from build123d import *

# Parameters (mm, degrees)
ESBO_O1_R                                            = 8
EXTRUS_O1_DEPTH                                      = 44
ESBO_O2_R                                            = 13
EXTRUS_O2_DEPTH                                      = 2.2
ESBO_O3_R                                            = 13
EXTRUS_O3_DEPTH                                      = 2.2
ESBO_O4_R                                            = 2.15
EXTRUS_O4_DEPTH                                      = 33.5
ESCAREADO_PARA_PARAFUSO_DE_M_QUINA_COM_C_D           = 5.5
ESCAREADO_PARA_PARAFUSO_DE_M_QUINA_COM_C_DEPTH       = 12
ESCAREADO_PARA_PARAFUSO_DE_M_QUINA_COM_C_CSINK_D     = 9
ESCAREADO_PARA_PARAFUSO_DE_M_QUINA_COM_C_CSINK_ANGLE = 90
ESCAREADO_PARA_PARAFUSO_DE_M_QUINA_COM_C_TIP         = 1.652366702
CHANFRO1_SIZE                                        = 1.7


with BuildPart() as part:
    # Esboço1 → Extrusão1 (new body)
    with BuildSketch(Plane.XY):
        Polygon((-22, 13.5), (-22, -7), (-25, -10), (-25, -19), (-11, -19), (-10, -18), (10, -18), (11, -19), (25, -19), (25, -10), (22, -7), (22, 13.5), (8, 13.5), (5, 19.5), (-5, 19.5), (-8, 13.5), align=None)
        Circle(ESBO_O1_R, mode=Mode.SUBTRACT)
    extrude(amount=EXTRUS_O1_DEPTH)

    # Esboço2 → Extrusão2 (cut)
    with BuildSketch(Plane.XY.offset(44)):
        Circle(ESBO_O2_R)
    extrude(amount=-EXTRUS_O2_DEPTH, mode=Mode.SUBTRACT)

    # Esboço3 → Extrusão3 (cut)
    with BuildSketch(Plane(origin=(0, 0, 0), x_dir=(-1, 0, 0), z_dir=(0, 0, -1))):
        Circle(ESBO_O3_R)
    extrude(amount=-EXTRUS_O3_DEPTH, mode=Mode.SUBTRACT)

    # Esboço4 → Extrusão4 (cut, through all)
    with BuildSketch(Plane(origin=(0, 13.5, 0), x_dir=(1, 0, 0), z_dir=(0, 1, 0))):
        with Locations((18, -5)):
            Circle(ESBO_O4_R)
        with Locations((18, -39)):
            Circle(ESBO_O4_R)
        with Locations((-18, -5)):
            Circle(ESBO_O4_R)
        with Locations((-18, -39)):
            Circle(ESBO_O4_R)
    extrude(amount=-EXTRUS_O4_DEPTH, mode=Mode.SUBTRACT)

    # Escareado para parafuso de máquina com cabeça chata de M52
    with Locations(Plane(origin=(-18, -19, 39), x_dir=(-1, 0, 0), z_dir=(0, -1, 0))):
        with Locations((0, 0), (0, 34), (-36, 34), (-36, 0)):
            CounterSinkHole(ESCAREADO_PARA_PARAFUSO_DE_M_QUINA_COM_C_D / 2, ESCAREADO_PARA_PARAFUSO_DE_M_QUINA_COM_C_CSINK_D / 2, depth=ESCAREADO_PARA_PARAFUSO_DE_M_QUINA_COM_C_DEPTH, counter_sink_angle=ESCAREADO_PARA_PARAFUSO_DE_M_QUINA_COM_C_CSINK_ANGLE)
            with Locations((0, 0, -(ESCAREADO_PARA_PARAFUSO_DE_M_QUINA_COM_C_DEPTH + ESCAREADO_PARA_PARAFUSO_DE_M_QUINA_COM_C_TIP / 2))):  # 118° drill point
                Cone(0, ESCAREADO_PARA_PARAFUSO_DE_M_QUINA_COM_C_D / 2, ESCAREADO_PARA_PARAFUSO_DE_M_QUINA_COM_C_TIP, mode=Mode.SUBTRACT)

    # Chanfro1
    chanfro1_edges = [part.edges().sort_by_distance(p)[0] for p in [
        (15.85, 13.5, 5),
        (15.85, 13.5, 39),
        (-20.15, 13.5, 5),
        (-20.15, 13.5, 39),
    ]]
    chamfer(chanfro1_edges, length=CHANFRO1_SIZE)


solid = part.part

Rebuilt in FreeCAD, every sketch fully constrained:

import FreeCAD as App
import Part
import Sketcher
from FreeCAD import Vector
Q = App.Units.Quantity


def edges_at(feature, points):
    """Names of the edges that pass closest to the given points."""
    edges = feature.Shape.Edges
    near = lambda p: min(range(len(edges)), key=lambda i: edges[i].distToShape(Part.Vertex(*p))[0])
    return sorted({f"Edge{near(p) + 1}" for p in points})


def add_polygon(sketch, points):
    """Adds a closed chain of lines whose ends are joined by coincident constraints."""
    first, n = sketch.GeometryCount, len(points)
    for a, b in zip(points, points[1:] + points[:1]):
        sketch.addGeometry(Part.LineSegment(App.Vector(*a, 0), App.Vector(*b, 0)), False)
    for i in range(n):
        sketch.addConstraint(Sketcher.Constraint("Coincident", first + i, 2, first + (i + 1) % n, 1))

doc = App.newDocument("Part")
body = doc.addObject("PartDesign::Body", "Body")

sketch1 = body.newObject("Sketcher::SketchObject", "Sketch")
sketch1.AttachmentSupport = (doc.getObject("XY_Plane"), [""])
sketch1.MapMode = "FlatFace"
add_polygon(sketch1, [(-22, 13.5), (-22, -7), (-25, -10), (-25, -19), (-11, -19), (-10, -18), (10, -18), (11, -19), (25, -19), (25, -10), (22, -7), (22, 13.5), (8, 13.5), (5, 19.5), (-5, 19.5), (-8, 13.5)])
sketch1.addGeometry(Part.Circle(Vector(0, 0, 0), Vector(0, 0, 1), 8), False)
sketch1.addConstraint([
    Sketcher.Constraint("Vertical", 0),
    Sketcher.Constraint("Vertical", 2),
    Sketcher.Constraint("Horizontal", 3),
    Sketcher.Constraint("Horizontal", 5),
    Sketcher.Constraint("Horizontal", 7),
    Sketcher.Constraint("Vertical", 8),
    Sketcher.Constraint("Vertical", 10),
    Sketcher.Constraint("Horizontal", 11),
    Sketcher.Constraint("Horizontal", 13),
    Sketcher.Constraint("Horizontal", 15),
    Sketcher.Constraint("Coincident", 16, 3, -1, 1),
    Sketcher.Constraint("Symmetric", 3, 2, 6, 2, -2),
    Sketcher.Constraint("Symmetric", 1, 2, 8, 2, -2),
    Sketcher.Constraint("Symmetric", 0, 2, 9, 2, -2),
    Sketcher.Constraint("Symmetric", 11, 2, 14, 2, -2),
    Sketcher.Constraint("Parallel", 1, 4),
    Sketcher.Constraint("Perpendicular", 4, 6),
    Sketcher.Constraint("Parallel", 6, 9),
    Sketcher.Constraint("Equal", 7, 11),
    Sketcher.Constraint("Equal", 12, 14),
    Sketcher.Constraint("Diameter", 16, Q("16 mm")),
    Sketcher.Constraint("DistanceX", 3, 1, 3, 2, Q("14 mm")),
    Sketcher.Constraint("DistanceX", 5, 1, 5, 2, Q("20 mm")),
    Sketcher.Constraint("DistanceX", 13, 2, 13, 1, Q("10 mm")),
    Sketcher.Constraint("DistanceY", 2, 2, 2, 1, Q("9 mm")),
    Sketcher.Constraint("DistanceY", 0, 2, 0, 1, Q("20.5 mm")),
    Sketcher.Constraint("DistanceX", 0, 2, -1, 1, Q("22 mm")),
    Sketcher.Constraint("DistanceY", 0, 2, -1, 1, Q("7 mm")),
    Sketcher.Constraint("DistanceX", 1, 2, -1, 1, Q("25 mm")),
    Sketcher.Constraint("DistanceY", 11, 2, 12, 2, Q("6 mm")),
])
pad1 = body.newObject("PartDesign::Pad", "Pad")
pad1.Profile = sketch1
pad1.Length = 44

sketch2 = body.newObject("Sketcher::SketchObject", "Sketch001")
sketch2.AttachmentSupport = (doc.getObject("XY_Plane"), [""])
sketch2.MapMode = "FlatFace"
sketch2.AttachmentOffset = App.Placement(Vector(0, 0, 44), App.Rotation())
sketch2.addGeometry(Part.Circle(Vector(0, 0, 0), Vector(0, 0, 1), 13), False)
sketch2.addConstraint([
    Sketcher.Constraint("Coincident", 0, 3, -1, 1),
    Sketcher.Constraint("Diameter", 0, Q("26 mm")),
])
pocket1 = body.newObject("PartDesign::Pocket", "Pocket")
pocket1.Profile = sketch2
pocket1.Length = 2.2

sketch3 = body.newObject("Sketcher::SketchObject", "Sketch002")
sketch3.AttachmentSupport = (doc.getObject("XY_Plane"), [""])
sketch3.MapMode = "FlatFace"
sketch3.addGeometry(Part.Circle(Vector(0, 0, 0), Vector(0, 0, 1), 13), False)
sketch3.addConstraint([
    Sketcher.Constraint("Coincident", 0, 3, -1, 1),
    Sketcher.Constraint("Diameter", 0, Q("26 mm")),
])
pocket2 = body.newObject("PartDesign::Pocket", "Pocket001")
pocket2.Profile = sketch3
pocket2.Length = 2.2
pocket2.Reversed = True

sketch4 = body.newObject("Sketcher::SketchObject", "Sketch003")
sketch4.AttachmentSupport = (doc.getObject("XZ_Plane"), [""])
sketch4.MapMode = "FlatFace"
sketch4.AttachmentOffset = App.Placement(Vector(0, 0, -13.5), App.Rotation())
sketch4.addGeometry([
    Part.Circle(Vector(18, 5, 0), Vector(0, 0, 1), 2.1),
    Part.Circle(Vector(18, 39, 0), Vector(0, 0, 1), 2.1),
    Part.Circle(Vector(-18, 5, 0), Vector(0, 0, 1), 2.1),
    Part.Circle(Vector(-18, 39, 0), Vector(0, 0, 1), 2.1),
], False)
sketch4.addConstraint([
    Sketcher.Constraint("Equal", 0, 1),
    Sketcher.Constraint("Equal", 1, 2),
    Sketcher.Constraint("Equal", 2, 3),
    Sketcher.Constraint("Symmetric", 0, 3, 2, 3, -2),
    Sketcher.Constraint("Symmetric", 1, 3, 3, 3, -2),
    Sketcher.Constraint("Vertical", 0, 3, 1, 3),
    Sketcher.Constraint("Diameter", 0, Q("4.3 mm")),
    Sketcher.Constraint("DistanceX", -1, 1, 0, 3, Q("18 mm")),
    Sketcher.Constraint("DistanceY", -1, 1, 0, 3, Q("5 mm")),
    Sketcher.Constraint("DistanceY", -1, 1, 1, 3, Q("39 mm")),
])
pocket3 = body.newObject("PartDesign::Pocket", "Pocket002")
pocket3.Profile = sketch4
pocket3.Type = "ThroughAll"
pocket3.Reversed = True

sketch5 = body.newObject("Sketcher::SketchObject", "Sketch004")
sketch5.AttachmentSupport = (doc.getObject("XZ_Plane"), [""])
sketch5.MapMode = "FlatFace"
sketch5.AttachmentOffset = App.Placement(Vector(0, 0, 19), App.Rotation())
sketch5.addGeometry([
    Part.Circle(Vector(-18, 39, 0), Vector(0, 0, 1), 2.8),
    Part.Circle(Vector(-18, 5, 0), Vector(0, 0, 1), 2.8),
    Part.Circle(Vector(18, 5, 0), Vector(0, 0, 1), 2.8),
    Part.Circle(Vector(18, 39, 0), Vector(0, 0, 1), 2.8),
], False)
sketch5.addConstraint([
    Sketcher.Constraint("Equal", 0, 1),
    Sketcher.Constraint("Equal", 1, 2),
    Sketcher.Constraint("Equal", 2, 3),
    Sketcher.Constraint("Symmetric", 1, 3, 2, 3, -2),
    Sketcher.Constraint("Symmetric", 0, 3, 3, 3, -2),
    Sketcher.Constraint("Vertical", 0, 3, 1, 3),
    Sketcher.Constraint("Diameter", 0, Q("5.5 mm")),
    Sketcher.Constraint("DistanceX", 0, 3, -1, 1, Q("18 mm")),
    Sketcher.Constraint("DistanceY", -1, 1, 0, 3, Q("39 mm")),
    Sketcher.Constraint("DistanceY", -1, 1, 1, 3, Q("5 mm")),
])
doc.recompute()
hole = body.newObject("PartDesign::Hole", "Hole")
hole.Profile = sketch5
hole.ThreadType = "None"
hole.Diameter = 5.5
hole.DepthType = "Dimension"
hole.Depth = 12
hole.DrillPoint = "Angled"
hole.DrillPointAngle = 118
hole.HoleCutType = "Countersink"
hole.HoleCutDiameter = 9
hole.HoleCutCountersinkAngle = 90
doc.recompute()

chamfer = body.newObject("PartDesign::Chamfer", "Chamfer")
chamfer.Base = (hole, edges_at(hole, [
    (15.85, 13.5, 5),
    (15.85, 13.5, 39),
    (-20.15, 13.5, 5),
    (-20.15, 13.5, 39),
]))
chamfer.Size = 1.7

doc.recompute()
